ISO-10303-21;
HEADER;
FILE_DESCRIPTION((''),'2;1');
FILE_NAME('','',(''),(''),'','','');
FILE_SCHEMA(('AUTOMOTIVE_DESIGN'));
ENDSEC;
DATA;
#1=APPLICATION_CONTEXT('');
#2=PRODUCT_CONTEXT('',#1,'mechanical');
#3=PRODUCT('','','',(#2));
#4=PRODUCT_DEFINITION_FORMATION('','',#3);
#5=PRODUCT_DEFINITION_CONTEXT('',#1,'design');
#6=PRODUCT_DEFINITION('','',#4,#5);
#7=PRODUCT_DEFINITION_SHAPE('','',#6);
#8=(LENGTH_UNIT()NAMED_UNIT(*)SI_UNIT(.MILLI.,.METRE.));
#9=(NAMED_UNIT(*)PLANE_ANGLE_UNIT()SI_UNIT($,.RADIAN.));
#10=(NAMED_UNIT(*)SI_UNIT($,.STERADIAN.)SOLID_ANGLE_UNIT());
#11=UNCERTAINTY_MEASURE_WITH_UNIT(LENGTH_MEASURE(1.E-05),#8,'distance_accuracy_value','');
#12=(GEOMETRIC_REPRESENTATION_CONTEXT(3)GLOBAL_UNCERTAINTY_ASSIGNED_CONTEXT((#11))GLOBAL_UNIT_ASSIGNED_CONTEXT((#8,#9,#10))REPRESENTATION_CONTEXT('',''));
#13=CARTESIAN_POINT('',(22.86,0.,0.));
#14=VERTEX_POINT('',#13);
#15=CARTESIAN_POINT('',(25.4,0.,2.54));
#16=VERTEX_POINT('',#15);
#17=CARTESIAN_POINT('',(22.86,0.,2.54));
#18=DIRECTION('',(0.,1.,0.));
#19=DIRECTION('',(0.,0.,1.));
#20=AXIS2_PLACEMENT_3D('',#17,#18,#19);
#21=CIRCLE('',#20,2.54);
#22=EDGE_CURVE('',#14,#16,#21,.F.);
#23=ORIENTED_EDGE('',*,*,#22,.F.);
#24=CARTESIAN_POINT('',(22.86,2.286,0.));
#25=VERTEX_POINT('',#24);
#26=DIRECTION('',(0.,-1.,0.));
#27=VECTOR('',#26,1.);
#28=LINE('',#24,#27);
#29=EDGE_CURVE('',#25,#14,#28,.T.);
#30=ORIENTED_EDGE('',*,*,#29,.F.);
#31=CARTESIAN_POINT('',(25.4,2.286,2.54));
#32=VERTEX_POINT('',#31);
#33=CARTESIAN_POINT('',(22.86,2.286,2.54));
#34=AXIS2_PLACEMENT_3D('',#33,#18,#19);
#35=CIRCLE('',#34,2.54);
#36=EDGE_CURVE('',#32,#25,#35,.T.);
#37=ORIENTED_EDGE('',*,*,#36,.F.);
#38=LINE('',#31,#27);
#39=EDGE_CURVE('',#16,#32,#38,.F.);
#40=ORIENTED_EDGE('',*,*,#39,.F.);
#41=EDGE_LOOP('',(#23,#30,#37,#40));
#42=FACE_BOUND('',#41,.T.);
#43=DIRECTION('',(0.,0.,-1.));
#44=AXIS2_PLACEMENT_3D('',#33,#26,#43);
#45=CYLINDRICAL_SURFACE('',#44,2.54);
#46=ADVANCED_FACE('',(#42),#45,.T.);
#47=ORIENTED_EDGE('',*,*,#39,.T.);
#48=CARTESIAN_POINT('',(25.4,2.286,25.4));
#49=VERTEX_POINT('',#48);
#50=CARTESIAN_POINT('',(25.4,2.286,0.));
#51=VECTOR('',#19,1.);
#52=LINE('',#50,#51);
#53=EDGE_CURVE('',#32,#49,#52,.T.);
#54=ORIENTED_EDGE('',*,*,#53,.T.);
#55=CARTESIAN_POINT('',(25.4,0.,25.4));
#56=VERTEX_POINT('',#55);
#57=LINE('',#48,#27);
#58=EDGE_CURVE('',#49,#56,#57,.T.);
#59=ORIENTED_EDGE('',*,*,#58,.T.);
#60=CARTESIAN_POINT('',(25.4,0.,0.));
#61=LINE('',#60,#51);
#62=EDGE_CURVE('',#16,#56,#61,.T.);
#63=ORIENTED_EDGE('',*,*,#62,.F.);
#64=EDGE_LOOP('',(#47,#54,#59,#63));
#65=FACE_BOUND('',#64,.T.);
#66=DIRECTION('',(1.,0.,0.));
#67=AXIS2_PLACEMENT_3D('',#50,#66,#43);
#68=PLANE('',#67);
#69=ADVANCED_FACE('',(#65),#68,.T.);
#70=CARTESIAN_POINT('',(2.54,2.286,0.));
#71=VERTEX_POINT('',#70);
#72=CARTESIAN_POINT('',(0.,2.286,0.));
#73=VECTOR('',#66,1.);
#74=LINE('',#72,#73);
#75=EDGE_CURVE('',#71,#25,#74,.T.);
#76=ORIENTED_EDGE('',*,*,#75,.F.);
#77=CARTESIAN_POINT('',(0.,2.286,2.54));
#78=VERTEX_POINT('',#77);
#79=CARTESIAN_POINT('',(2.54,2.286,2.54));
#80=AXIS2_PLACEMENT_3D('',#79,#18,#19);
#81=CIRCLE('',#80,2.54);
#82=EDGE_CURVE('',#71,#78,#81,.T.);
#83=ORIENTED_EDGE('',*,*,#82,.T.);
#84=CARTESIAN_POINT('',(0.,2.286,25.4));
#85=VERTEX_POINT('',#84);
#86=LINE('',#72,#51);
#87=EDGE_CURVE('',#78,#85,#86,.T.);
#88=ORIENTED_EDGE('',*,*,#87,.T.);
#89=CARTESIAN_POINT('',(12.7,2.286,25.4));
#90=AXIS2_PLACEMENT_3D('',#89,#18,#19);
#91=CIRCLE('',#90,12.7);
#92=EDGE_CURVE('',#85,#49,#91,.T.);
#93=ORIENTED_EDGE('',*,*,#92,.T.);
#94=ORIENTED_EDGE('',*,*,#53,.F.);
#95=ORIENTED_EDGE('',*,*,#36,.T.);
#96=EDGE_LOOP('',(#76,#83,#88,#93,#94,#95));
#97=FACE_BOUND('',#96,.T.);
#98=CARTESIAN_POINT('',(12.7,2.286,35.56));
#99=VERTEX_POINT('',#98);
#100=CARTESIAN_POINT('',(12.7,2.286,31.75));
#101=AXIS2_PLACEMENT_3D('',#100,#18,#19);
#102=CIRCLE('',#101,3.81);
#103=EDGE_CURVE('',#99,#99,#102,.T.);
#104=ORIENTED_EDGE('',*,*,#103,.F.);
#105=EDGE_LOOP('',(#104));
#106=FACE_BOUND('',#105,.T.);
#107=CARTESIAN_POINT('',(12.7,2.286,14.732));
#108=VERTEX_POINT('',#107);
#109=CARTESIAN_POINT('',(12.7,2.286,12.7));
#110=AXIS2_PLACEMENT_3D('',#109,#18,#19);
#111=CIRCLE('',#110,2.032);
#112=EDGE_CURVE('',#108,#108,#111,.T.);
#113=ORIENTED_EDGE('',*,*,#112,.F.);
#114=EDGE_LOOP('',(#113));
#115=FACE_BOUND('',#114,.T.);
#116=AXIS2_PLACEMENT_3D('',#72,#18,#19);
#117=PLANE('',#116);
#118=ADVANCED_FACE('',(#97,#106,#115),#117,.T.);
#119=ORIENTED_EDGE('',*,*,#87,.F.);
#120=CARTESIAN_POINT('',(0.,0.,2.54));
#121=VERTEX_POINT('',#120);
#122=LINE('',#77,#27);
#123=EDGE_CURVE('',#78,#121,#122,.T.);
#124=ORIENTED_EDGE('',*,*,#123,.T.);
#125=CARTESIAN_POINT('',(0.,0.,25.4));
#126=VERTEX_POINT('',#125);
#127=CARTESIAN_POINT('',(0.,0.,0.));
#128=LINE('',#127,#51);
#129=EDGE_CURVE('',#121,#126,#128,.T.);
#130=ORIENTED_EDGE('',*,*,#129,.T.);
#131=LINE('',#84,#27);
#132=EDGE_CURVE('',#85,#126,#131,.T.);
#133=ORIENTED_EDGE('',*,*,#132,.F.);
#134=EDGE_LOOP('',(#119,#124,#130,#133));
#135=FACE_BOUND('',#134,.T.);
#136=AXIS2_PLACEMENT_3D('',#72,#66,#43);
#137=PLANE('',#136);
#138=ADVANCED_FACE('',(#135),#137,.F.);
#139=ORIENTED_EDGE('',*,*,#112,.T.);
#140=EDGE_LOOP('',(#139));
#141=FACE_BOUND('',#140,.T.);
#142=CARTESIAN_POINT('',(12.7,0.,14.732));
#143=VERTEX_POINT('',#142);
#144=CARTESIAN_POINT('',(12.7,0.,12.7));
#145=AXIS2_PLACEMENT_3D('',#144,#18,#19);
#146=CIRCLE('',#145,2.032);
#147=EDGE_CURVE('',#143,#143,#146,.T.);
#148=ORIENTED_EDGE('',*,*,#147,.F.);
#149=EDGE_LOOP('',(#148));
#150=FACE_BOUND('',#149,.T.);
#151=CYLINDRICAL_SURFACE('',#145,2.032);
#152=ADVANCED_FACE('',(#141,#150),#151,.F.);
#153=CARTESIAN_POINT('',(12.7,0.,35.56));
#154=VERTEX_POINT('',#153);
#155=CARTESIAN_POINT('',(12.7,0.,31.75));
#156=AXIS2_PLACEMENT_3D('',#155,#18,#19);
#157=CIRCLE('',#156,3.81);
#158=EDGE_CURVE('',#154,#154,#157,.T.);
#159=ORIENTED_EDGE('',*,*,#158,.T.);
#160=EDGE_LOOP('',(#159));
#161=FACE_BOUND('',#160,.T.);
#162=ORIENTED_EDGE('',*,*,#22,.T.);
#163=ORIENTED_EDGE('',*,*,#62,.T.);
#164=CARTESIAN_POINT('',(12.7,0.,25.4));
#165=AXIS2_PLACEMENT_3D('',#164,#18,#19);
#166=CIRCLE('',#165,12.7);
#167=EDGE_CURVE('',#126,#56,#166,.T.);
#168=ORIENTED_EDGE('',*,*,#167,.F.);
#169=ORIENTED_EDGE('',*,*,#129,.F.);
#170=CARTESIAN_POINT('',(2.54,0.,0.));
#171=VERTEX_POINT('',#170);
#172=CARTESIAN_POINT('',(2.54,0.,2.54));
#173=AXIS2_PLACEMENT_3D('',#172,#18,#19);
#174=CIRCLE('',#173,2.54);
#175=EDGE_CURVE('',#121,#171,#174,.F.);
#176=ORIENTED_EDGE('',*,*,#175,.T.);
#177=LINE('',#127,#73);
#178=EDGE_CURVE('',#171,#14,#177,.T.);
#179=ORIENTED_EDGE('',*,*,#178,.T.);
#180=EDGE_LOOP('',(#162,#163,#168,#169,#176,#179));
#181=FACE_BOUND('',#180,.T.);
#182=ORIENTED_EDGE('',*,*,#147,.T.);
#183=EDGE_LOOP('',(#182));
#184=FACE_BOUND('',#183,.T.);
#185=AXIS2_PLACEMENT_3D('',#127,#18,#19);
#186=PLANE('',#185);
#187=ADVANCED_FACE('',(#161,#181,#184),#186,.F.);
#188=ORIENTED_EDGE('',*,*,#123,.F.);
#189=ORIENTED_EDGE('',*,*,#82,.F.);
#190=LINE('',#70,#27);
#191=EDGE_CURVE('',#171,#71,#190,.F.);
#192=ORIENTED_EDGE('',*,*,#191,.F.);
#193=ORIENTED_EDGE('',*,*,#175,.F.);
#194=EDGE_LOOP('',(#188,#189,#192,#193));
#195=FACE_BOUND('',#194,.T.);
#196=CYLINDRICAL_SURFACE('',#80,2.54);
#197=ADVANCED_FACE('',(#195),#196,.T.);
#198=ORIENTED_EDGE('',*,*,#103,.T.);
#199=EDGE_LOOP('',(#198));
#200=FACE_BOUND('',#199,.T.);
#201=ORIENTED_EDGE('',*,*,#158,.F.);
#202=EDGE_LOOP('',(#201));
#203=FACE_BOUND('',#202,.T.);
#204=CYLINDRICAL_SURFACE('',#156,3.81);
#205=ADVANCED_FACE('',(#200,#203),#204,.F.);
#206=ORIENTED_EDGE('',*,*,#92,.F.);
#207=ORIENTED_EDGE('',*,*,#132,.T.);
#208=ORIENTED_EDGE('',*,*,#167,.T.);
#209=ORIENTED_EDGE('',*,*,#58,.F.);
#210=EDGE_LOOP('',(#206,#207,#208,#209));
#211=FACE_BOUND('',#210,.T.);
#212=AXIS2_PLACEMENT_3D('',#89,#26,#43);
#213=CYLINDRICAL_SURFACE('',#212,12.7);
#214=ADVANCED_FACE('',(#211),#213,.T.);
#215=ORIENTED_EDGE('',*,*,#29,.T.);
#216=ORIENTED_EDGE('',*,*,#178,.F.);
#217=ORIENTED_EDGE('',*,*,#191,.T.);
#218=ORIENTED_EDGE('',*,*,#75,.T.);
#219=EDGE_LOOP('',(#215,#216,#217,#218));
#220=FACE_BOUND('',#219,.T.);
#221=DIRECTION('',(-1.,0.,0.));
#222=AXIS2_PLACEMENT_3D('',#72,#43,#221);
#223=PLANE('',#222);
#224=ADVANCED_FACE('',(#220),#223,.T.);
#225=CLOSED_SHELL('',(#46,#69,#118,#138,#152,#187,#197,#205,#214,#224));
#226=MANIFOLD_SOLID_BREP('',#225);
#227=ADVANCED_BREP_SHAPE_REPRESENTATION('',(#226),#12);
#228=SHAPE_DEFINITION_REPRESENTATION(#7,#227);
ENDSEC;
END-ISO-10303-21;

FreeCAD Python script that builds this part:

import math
import FreeCAD as App
import Part
import Sketcher
Q = App.Units.Quantity


def edges_at(feature, points):
    """Names of the edges that pass closest to the given points."""
    edges = feature.Shape.Edges
    near = lambda p: min(range(len(edges)), key=lambda i: edges[i].distToShape(Part.Vertex(*p))[0])
    return sorted({f"Edge{near(p) + 1}" for p in points})

doc = App.newDocument("Part")
body = doc.addObject("PartDesign::Body", "Body")

sketch1 = body.newObject("Sketcher::SketchObject", "Sketch")
sketch1.AttachmentSupport = (doc.getObject("XZ_Plane"), [""])
sketch1.MapMode = "FlatFace"
sketch1.addGeometry([
    Part.ArcOfCircle(Part.Circle(App.Vector(13, 25, 0), App.Vector(0, 0, 1), 13), math.radians(0), math.radians(180)),
    Part.LineSegment(App.Vector(25, 25, 0), App.Vector(25, 0, 0)),
    Part.LineSegment(App.Vector(25, 0, 0), App.Vector(0, 0, 0)),
    Part.LineSegment(App.Vector(0, 0, 0), App.Vector(0, 25, 0)),
], False)
sketch1.addConstraint([
    Sketcher.Constraint("Tangent", 0, 1, 1, 1),
    Sketcher.Constraint("Coincident", 1, 2, 2, 1),
    Sketcher.Constraint("Coincident", 2, 2, 3, 1),
    Sketcher.Constraint("Tangent", 3, 2, 0, 2),
    Sketcher.Constraint("Vertical", 1),
    Sketcher.Constraint("Horizontal", 2),
    Sketcher.Constraint("Vertical", 3),
    Sketcher.Constraint("Coincident", 2, 2, -1, 1),
    Sketcher.Constraint("Equal", 2, 1),
    Sketcher.Constraint("Radius", 0, Q("0.5 in")),
])
pad1 = body.newObject("PartDesign::Pad", "Pad")
pad1.Profile = sketch1
pad1.Length = Q("0.09 in")
pad1.Reversed = True

sketch2 = body.newObject("Sketcher::SketchObject", "Sketch001")
sketch2.AttachmentSupport = (doc.getObject("XZ_Plane"), [""])
sketch2.MapMode = "FlatFace"
sketch2.AttachmentOffset = App.Placement(App.Vector(0, 0, -0.09 * 25.4), App.Rotation())
sketch2.addGeometry([
    Part.Circle(App.Vector(12.7, 12.7, 0), App.Vector(0, 0, 1), 2),
    Part.Circle(App.Vector(12.7, 31.8, 0), App.Vector(0, 0, 1), 3.8),
], False)
sketch2.addConstraint([
    Sketcher.Constraint("Vertical", 0, 3, 1, 3),
    Sketcher.Constraint("Diameter", 1, Q("0.3 in")),
    Sketcher.Constraint("Diameter", 0, Q("0.16 in")),
    Sketcher.Constraint("DistanceX", -1, 1, 0, 3, Q("0.5 in")),
    Sketcher.Constraint("DistanceY", -1, 1, 0, 3, Q("0.5 in")),
    Sketcher.Constraint("DistanceY", -1, 1, 1, 3, Q("1.25 in")),
])
pocket1 = body.newObject("PartDesign::Pocket", "Pocket")
pocket1.Profile = sketch2
pocket1.Type = "ThroughAll"
pocket1.Midplane = True
doc.recompute()

fillet = body.newObject("PartDesign::Fillet", "Fillet")
fillet.Base = (pocket1, edges_at(pocket1, [(0, 1.143, 0)]))
fillet.Radius = Q("0.1 in")
doc.recompute()

fillet2 = body.newObject("PartDesign::Fillet", "Fillet001")
fillet2.Base = (fillet, edges_at(fillet, [(25.4, 1.143, 0)]))
fillet2.Radius = Q("0.1 in")

doc.recompute()
